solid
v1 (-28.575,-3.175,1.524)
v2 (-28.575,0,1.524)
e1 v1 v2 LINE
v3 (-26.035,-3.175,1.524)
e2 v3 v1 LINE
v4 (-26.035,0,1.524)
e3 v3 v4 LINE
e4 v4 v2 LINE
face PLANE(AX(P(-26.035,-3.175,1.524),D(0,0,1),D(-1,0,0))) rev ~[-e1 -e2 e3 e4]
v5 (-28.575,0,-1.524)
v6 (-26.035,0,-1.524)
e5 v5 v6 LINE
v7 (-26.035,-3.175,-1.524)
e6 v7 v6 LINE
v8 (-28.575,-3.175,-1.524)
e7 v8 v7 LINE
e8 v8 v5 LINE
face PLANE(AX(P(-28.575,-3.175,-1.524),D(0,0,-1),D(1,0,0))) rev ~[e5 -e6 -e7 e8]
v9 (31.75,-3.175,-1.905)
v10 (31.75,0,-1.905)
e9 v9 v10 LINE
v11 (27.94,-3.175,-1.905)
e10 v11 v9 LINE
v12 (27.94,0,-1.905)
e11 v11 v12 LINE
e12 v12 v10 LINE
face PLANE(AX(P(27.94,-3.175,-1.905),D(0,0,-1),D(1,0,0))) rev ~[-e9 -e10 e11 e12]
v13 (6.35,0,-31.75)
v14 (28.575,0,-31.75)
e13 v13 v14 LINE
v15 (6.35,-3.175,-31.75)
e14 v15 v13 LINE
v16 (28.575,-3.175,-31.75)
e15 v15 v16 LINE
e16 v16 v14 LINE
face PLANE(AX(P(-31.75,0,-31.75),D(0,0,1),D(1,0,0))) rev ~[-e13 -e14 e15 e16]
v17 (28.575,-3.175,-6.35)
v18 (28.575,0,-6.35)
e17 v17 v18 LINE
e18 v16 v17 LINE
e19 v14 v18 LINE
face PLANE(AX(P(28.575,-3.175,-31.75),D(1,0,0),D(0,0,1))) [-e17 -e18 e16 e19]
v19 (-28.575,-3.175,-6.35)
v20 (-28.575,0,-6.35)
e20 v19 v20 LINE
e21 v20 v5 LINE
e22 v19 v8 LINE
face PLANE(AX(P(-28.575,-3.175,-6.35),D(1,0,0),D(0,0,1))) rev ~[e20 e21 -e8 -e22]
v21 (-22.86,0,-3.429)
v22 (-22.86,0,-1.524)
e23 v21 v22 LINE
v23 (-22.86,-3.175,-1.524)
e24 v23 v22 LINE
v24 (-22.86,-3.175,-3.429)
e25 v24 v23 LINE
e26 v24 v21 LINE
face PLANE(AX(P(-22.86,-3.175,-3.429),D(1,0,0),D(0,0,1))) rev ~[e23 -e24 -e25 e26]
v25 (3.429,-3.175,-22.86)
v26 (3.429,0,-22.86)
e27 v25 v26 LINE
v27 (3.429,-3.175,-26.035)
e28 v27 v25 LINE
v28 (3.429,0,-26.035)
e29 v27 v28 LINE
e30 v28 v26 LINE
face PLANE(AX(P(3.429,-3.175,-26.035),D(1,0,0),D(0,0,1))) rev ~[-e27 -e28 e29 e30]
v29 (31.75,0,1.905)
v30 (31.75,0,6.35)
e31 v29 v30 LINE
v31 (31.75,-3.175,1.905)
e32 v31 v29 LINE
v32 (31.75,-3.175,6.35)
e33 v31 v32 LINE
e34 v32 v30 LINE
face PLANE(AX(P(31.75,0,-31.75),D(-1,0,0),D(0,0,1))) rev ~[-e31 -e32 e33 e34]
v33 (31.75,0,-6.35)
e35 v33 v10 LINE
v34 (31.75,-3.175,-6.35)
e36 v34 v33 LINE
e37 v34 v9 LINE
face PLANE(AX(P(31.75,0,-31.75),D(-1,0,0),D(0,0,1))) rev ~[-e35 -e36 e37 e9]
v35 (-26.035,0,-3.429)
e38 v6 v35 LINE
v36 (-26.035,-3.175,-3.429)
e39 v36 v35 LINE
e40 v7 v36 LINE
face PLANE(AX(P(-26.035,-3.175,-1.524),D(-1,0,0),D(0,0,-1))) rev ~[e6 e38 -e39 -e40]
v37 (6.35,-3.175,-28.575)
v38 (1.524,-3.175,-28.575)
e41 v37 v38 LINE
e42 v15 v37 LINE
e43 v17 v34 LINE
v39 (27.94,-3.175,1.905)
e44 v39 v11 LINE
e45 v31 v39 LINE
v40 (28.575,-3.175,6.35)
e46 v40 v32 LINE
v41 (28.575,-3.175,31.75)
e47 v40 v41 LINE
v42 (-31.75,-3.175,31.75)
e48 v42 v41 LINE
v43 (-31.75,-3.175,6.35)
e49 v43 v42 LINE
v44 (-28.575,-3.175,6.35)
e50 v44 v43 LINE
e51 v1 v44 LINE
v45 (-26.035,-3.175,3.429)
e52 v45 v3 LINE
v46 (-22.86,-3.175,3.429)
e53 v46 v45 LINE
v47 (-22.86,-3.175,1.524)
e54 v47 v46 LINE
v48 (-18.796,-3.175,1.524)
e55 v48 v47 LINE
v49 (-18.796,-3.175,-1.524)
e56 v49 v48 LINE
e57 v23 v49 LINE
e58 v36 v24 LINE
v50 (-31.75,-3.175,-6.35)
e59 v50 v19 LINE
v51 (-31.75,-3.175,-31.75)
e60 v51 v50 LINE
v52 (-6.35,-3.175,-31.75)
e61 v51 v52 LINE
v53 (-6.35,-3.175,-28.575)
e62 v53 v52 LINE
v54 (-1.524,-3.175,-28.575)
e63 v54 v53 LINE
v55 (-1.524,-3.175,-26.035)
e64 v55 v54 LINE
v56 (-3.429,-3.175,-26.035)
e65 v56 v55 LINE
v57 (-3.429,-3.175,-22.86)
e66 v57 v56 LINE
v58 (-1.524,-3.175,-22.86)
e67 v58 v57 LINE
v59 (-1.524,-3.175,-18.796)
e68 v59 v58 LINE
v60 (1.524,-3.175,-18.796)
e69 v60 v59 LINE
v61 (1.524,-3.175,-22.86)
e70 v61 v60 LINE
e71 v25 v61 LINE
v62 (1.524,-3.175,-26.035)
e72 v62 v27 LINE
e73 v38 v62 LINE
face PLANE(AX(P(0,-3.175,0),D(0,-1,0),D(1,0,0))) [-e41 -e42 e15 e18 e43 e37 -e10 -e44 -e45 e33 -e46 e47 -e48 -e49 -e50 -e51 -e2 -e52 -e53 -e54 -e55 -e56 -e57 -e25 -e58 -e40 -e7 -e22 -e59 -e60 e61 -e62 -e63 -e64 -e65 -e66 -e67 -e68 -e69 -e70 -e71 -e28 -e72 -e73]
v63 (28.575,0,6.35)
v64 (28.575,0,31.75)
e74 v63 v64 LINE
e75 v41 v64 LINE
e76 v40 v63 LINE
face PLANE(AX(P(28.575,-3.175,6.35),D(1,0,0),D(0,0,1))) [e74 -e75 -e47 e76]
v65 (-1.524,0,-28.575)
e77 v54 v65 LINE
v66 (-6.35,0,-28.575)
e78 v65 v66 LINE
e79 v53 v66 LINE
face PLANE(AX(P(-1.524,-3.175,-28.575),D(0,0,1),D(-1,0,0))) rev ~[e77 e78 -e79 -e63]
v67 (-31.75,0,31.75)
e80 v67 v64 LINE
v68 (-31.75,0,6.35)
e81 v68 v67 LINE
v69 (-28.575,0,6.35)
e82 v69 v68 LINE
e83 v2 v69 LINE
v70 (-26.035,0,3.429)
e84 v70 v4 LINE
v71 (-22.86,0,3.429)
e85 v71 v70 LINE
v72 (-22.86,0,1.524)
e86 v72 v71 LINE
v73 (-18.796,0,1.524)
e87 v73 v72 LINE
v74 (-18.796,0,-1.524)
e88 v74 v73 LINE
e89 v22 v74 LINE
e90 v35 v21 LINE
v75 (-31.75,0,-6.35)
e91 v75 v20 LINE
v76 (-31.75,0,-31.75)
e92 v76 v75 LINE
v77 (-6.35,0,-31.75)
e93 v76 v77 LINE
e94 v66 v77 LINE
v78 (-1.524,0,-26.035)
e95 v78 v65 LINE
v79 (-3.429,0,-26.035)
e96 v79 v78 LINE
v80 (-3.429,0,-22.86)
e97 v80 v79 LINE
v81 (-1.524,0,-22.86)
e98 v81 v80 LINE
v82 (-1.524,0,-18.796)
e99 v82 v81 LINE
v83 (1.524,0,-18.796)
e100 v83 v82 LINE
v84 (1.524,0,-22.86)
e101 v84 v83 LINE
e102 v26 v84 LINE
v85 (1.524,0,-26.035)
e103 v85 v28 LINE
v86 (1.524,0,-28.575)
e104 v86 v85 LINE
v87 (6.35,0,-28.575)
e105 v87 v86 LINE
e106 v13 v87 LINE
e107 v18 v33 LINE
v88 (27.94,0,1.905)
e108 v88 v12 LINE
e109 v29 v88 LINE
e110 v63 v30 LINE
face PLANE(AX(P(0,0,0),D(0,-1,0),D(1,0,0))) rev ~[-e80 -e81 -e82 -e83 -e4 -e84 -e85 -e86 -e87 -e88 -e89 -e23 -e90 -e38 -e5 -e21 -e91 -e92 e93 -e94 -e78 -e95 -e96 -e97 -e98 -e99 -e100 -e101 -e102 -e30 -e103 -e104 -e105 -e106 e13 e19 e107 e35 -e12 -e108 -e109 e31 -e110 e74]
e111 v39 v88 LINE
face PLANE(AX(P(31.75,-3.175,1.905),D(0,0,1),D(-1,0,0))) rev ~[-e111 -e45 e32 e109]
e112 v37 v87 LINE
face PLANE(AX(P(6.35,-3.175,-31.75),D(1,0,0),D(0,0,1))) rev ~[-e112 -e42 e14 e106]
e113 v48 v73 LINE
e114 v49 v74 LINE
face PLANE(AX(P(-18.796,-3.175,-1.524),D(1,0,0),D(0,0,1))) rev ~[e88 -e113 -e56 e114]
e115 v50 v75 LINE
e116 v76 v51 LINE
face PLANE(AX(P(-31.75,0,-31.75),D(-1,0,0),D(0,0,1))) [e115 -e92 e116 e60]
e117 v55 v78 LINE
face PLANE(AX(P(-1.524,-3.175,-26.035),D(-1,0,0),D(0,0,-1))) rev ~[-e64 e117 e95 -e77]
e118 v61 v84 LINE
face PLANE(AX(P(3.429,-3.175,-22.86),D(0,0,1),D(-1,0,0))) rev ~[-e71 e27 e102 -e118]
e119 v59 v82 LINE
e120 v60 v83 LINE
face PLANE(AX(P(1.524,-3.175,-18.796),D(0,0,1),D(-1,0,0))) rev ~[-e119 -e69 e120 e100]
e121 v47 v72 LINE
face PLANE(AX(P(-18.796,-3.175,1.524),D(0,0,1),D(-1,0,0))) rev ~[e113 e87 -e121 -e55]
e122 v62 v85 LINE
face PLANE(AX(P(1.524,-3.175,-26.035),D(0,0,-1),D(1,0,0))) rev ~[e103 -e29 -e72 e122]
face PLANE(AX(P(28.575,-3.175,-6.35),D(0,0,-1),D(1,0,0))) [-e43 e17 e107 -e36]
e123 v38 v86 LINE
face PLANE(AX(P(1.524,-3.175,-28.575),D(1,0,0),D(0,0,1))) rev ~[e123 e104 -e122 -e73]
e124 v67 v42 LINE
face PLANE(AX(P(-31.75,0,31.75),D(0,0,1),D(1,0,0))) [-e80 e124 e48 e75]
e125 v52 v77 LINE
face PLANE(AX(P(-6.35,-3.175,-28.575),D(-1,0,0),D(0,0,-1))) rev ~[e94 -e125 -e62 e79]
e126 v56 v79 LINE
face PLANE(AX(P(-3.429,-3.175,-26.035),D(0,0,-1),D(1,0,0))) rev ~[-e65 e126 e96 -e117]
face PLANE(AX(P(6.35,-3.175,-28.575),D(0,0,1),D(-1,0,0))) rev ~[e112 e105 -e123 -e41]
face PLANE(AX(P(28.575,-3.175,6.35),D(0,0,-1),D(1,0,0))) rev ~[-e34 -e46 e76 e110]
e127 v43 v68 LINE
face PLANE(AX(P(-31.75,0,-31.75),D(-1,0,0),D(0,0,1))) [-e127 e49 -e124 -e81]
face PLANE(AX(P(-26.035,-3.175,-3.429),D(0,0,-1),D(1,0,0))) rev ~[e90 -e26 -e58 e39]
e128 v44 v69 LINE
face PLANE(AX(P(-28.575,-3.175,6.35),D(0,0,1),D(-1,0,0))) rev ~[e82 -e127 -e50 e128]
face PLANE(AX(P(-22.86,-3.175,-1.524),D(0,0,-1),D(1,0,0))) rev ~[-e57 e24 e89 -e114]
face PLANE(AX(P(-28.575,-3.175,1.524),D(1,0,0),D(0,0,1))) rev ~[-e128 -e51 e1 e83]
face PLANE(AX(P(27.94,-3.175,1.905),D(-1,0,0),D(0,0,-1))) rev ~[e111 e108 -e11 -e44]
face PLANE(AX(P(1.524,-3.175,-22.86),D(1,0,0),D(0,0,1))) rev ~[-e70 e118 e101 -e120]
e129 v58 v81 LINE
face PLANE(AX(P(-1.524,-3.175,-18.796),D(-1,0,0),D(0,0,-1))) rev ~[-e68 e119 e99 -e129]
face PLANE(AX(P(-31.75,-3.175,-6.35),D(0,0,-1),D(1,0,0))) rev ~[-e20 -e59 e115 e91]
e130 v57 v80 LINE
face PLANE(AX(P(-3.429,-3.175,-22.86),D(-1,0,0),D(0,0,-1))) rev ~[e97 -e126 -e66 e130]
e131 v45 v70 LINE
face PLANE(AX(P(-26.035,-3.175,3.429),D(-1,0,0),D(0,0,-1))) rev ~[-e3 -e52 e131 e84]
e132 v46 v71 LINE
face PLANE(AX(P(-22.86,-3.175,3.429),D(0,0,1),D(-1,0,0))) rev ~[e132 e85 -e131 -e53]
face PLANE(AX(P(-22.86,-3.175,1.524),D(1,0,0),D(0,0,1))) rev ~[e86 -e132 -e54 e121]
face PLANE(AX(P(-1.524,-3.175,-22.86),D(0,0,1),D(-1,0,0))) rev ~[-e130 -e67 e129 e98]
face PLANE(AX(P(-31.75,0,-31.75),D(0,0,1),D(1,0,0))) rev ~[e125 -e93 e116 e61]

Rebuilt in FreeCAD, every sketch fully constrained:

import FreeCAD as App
import Part
import Sketcher
from FreeCAD import Vector
Q = App.Units.Quantity

doc = App.newDocument("Part")
body = doc.addObject("PartDesign::Body", "Body")

# Sketch on XZ plane
sketch1 = body.newObject("Sketcher::SketchObject", "Sketch")
sketch1.AttachmentSupport = (doc.getObject("XZ_Plane"), [""])
sketch1.MapMode = "FlatFace"
sketch1.addGeometry(Part.LineSegment(Vector(-31.75, 31.75, 0), Vector(-31.75, -31.75, 0)), False)
sketch1.addGeometry(Part.LineSegment(Vector(-31.75, -31.75, 0), Vector(31.75, -31.75, 0)), False)
sketch1.addGeometry(Part.LineSegment(Vector(31.75, -31.75, 0), Vector(31.75, 31.75, 0)), False)
sketch1.addGeometry(Part.LineSegment(Vector(31.75, 31.75, 0), Vector(-31.75, 31.75, 0)), False)
sketch1.addConstraint(Sketcher.Constraint("Coincident", 0, 2, 1, 1))
sketch1.addConstraint(Sketcher.Constraint("Coincident", 1, 2, 2, 1))
sketch1.addConstraint(Sketcher.Constraint("Coincident", 2, 2, 3, 1))
sketch1.addConstraint(Sketcher.Constraint("Coincident", 3, 2, 0, 1))
sketch1.addConstraint(Sketcher.Constraint("Vertical", 0))
sketch1.addConstraint(Sketcher.Constraint("Horizontal", 1))
sketch1.addConstraint(Sketcher.Constraint("Vertical", 2))
sketch1.addConstraint(Sketcher.Constraint("Horizontal", 3))
sketch1.addConstraint(Sketcher.Constraint("Symmetric", 0, 2, 2, 2, -1, 1))
sketch1.addConstraint(Sketcher.Constraint("Equal", 3, 0))
sketch1.addConstraint(Sketcher.Constraint("DistanceX", 1, 1, 1, 2, Q("2.5 in")))
pad1 = body.newObject("PartDesign::Pad", "Pad")
pad1.Profile = sketch1
pad1.Length = Q("0.125 in")

# Sketch on XZ plane
sketch2 = body.newObject("Sketcher::SketchObject", "Sketch001")
sketch2.AttachmentSupport = (doc.getObject("XZ_Plane"), [""])
sketch2.MapMode = "FlatFace"
sketch2.AttachmentOffset = App.Placement(Vector(0, 0, 0.125 * 25.4), App.Rotation())
sketch2.addGeometry(Part.LineSegment(Vector(28.575, 31.75, 0), Vector(28.575, 6.35, 0)), False)
sketch2.addGeometry(Part.LineSegment(Vector(28.575, 6.35, 0), Vector(31.75, 6.35, 0)), False)
sketch2.addGeometry(Part.LineSegment(Vector(31.75, 6.35, 0), Vector(31.75, 31.75, 0)), False)
sketch2.addGeometry(Part.LineSegment(Vector(31.75, 31.75, 0), Vector(28.575, 31.75, 0)), False)
sketch2.addGeometry(Part.LineSegment(Vector(28.575, -6.35, 0), Vector(28.575, -31.75, 0)), False)
sketch2.addGeometry(Part.LineSegment(Vector(28.575, -31.75, 0), Vector(31.75, -31.75, 0)), False)
sketch2.addGeometry(Part.LineSegment(Vector(31.75, -31.75, 0), Vector(31.75, -6.35, 0)), False)
sketch2.addGeometry(Part.LineSegment(Vector(31.75, -6.35, 0), Vector(28.575, -6.35, 0)), False)
sketch2.addGeometry(Part.LineSegment(Vector(31.75, 1.905, 0), Vector(27.94, 1.905, 0)), False)
sketch2.addGeometry(Part.LineSegment(Vector(27.94, 1.905, 0), Vector(27.94, -1.905, 0)), False)
sketch2.addGeometry(Part.LineSegment(Vector(27.94, -1.905, 0), Vector(31.75, -1.905, 0)), False)
sketch2.addGeometry(Part.LineSegment(Vector(31.75, -1.905, 0), Vector(31.75, 1.905, 0)), False)
sketch2.addGeometry(Part.LineSegment(Vector(-6.35, -31.75, 0), Vector(6.35, -31.75, 0)), False)
sketch2.addGeometry(Part.LineSegment(Vector(6.35, -31.75, 0), Vector(6.35, -28.575, 0)), False)
sketch2.addGeometry(Part.LineSegment(Vector(6.35, -28.575, 0), Vector(1.524, -28.575, 0)), False)
sketch2.addGeometry(Part.LineSegment(Vector(1.524, -28.575, 0), Vector(1.524, -26.035, 0)), False)
sketch2.addGeometry(Part.LineSegment(Vector(1.524, -26.035, 0), Vector(3.429, -26.035, 0)), False)
sketch2.addGeometry(Part.LineSegment(Vector(3.429, -26.035, 0), Vector(3.429, -22.86, 0)), False)
sketch2.addGeometry(Part.LineSegment(Vector(3.429, -22.86, 0), Vector(1.524, -22.86, 0)), False)
sketch2.addGeometry(Part.LineSegment(Vector(1.524, -22.86, 0), Vector(1.524, -18.796, 0)), False)
sketch2.addGeometry(Part.LineSegment(Vector(1.524, -18.796, 0), Vector(-1.524, -18.796, 0)), False)
sketch2.addGeometry(Part.LineSegment(Vector(-1.524, -18.796, 0), Vector(-1.524, -22.86, 0)), False)
sketch2.addGeometry(Part.LineSegment(Vector(-1.524, -22.86, 0), Vector(-3.429, -22.86, 0)), False)
sketch2.addGeometry(Part.LineSegment(Vector(-3.429, -22.86, 0), Vector(-3.429, -26.035, 0)), False)
sketch2.addGeometry(Part.LineSegment(Vector(-3.429, -26.035, 0), Vector(-1.524, -26.035, 0)), False)
sketch2.addGeometry(Part.LineSegment(Vector(-1.524, -26.035, 0), Vector(-1.524, -28.575, 0)), False)
sketch2.addGeometry(Part.LineSegment(Vector(-1.524, -28.575, 0), Vector(-6.35, -28.575, 0)), False)
sketch2.addGeometry(Part.LineSegment(Vector(-6.35, -28.575, 0), Vector(-6.35, -31.75, 0)), False)
sketch2.addGeometry(Part.LineSegment(Vector(-31.75, 6.35, 0), Vector(-31.75, -6.35, 0)), False)
sketch2.addGeometry(Part.LineSegment(Vector(-31.75, -6.35, 0), Vector(-28.575, -6.35, 0)), False)
sketch2.addGeometry(Part.LineSegment(Vector(-28.575, -6.35, 0), Vector(-28.575, -1.524, 0)), False)
sketch2.addGeometry(Part.LineSegment(Vector(-28.575, -1.524, 0), Vector(-26.035, -1.524, 0)), False)
sketch2.addGeometry(Part.LineSegment(Vector(-26.035, -1.524, 0), Vector(-26.035, -3.429, 0)), False)
sketch2.addGeometry(Part.LineSegment(Vector(-26.035, -3.429, 0), Vector(-22.86, -3.429, 0)), False)
sketch2.addGeometry(Part.LineSegment(Vector(-22.86, -3.429, 0), Vector(-22.86, -1.524, 0)), False)
sketch2.addGeometry(Part.LineSegment(Vector(-22.86, -1.524, 0), Vector(-18.796, -1.524, 0)), False)
sketch2.addGeometry(Part.LineSegment(Vector(-18.796, -1.524, 0), Vector(-18.796, 1.524, 0)), False)
sketch2.addGeometry(Part.LineSegment(Vector(-18.796, 1.524, 0), Vector(-22.86, 1.524, 0)), False)
sketch2.addGeometry(Part.LineSegment(Vector(-22.86, 1.524, 0), Vector(-22.86, 3.429, 0)), False)
sketch2.addGeometry(Part.LineSegment(Vector(-22.86, 3.429, 0), Vector(-26.035, 3.429, 0)), False)
sketch2.addGeometry(Part.LineSegment(Vector(-26.035, 3.429, 0), Vector(-26.035, 1.524, 0)), False)
sketch2.addGeometry(Part.LineSegment(Vector(-26.035, 1.524, 0), Vector(-28.575, 1.524, 0)), False)
sketch2.addGeometry(Part.LineSegment(Vector(-28.575, 1.524, 0), Vector(-28.575, 6.35, 0)), False)
sketch2.addGeometry(Part.LineSegment(Vector(-28.575, 6.35, 0), Vector(-31.75, 6.35, 0)), False)
sketch2.addConstraint(Sketcher.Constraint("Coincident", 0, 2, 1, 1))
sketch2.addConstraint(Sketcher.Constraint("Coincident", 1, 2, 2, 1))
sketch2.addConstraint(Sketcher.Constraint("Coincident", 2, 2, 3, 1))
sketch2.addConstraint(Sketcher.Constraint("Coincident", 3, 2, 0, 1))
sketch2.addConstraint(Sketcher.Constraint("Coincident", 4, 2, 5, 1))
sketch2.addConstraint(Sketcher.Constraint("Coincident", 5, 2, 6, 1))
sketch2.addConstraint(Sketcher.Constraint("Coincident", 6, 2, 7, 1))
sketch2.addConstraint(Sketcher.Constraint("Coincident", 7, 2, 4, 1))
sketch2.addConstraint(Sketcher.Constraint("Coincident", 8, 2, 9, 1))
sketch2.addConstraint(Sketcher.Constraint("Coincident", 9, 2, 10, 1))
sketch2.addConstraint(Sketcher.Constraint("Coincident", 10, 2, 11, 1))
sketch2.addConstraint(Sketcher.Constraint("Coincident", 11, 2, 8, 1))
sketch2.addConstraint(Sketcher.Constraint("Coincident", 12, 2, 13, 1))
sketch2.addConstraint(Sketcher.Constraint("Coincident", 13, 2, 14, 1))
sketch2.addConstraint(Sketcher.Constraint("Coincident", 14, 2, 15, 1))
sketch2.addConstraint(Sketcher.Constraint("Coincident", 15, 2, 16, 1))
sketch2.addConstraint(Sketcher.Constraint("Coincident", 16, 2, 17, 1))
sketch2.addConstraint(Sketcher.Constraint("Coincident", 17, 2, 18, 1))
sketch2.addConstraint(Sketcher.Constraint("Coincident", 18, 2, 19, 1))
sketch2.addConstraint(Sketcher.Constraint("Coincident", 19, 2, 20, 1))
sketch2.addConstraint(Sketcher.Constraint("Coincident", 20, 2, 21, 1))
sketch2.addConstraint(Sketcher.Constraint("Coincident", 21, 2, 22, 1))
sketch2.addConstraint(Sketcher.Constraint("Coincident", 22, 2, 23, 1))
sketch2.addConstraint(Sketcher.Constraint("Coincident", 23, 2, 24, 1))
sketch2.addConstraint(Sketcher.Constraint("Coincident", 24, 2, 25, 1))
sketch2.addConstraint(Sketcher.Constraint("Coincident", 25, 2, 26, 1))
sketch2.addConstraint(Sketcher.Constraint("Coincident", 26, 2, 27, 1))
sketch2.addConstraint(Sketcher.Constraint("Coincident", 27, 2, 12, 1))
sketch2.addConstraint(Sketcher.Constraint("Coincident", 28, 2, 29, 1))
sketch2.addConstraint(Sketcher.Constraint("Coincident", 29, 2, 30, 1))
sketch2.addConstraint(Sketcher.Constraint("Coincident", 30, 2, 31, 1))
sketch2.addConstraint(Sketcher.Constraint("Coincident", 31, 2, 32, 1))
sketch2.addConstraint(Sketcher.Constraint("Coincident", 32, 2, 33, 1))
sketch2.addConstraint(Sketcher.Constraint("Coincident", 33, 2, 34, 1))
sketch2.addConstraint(Sketcher.Constraint("Coincident", 34, 2, 35, 1))
sketch2.addConstraint(Sketcher.Constraint("Coincident", 35, 2, 36, 1))
sketch2.addConstraint(Sketcher.Constraint("Coincident", 36, 2, 37, 1))
sketch2.addConstraint(Sketcher.Constraint("Coincident", 37, 2, 38, 1))
sketch2.addConstraint(Sketcher.Constraint("Coincident", 38, 2, 39, 1))
sketch2.addConstraint(Sketcher.Constraint("Coincident", 39, 2, 40, 1))
sketch2.addConstraint(Sketcher.Constraint("Coincident", 40, 2, 41, 1))
sketch2.addConstraint(Sketcher.Constraint("Coincident", 41, 2, 42, 1))
sketch2.addConstraint(Sketcher.Constraint("Coincident", 42, 2, 43, 1))
sketch2.addConstraint(Sketcher.Constraint("Coincident", 43, 2, 28, 1))
sketch2.addConstraint(Sketcher.Constraint("Vertical", 0))
sketch2.addConstraint(Sketcher.Constraint("Horizontal", 1))
sketch2.addConstraint(Sketcher.Constraint("Vertical", 2))
sketch2.addConstraint(Sketcher.Constraint("Horizontal", 3))
sketch2.addConstraint(Sketcher.Constraint("Vertical", 4))
sketch2.addConstraint(Sketcher.Constraint("Horizontal", 5))
sketch2.addConstraint(Sketcher.Constraint("Vertical", 6))
sketch2.addConstraint(Sketcher.Constraint("Horizontal", 7))
sketch2.addConstraint(Sketcher.Constraint("Horizontal", 8))
sketch2.addConstraint(Sketcher.Constraint("Vertical", 9))
sketch2.addConstraint(Sketcher.Constraint("Horizontal", 10))
sketch2.addConstraint(Sketcher.Constraint("Vertical", 11))
sketch2.addConstraint(Sketcher.Constraint("Horizontal", 12))
sketch2.addConstraint(Sketcher.Constraint("Vertical", 13))
sketch2.addConstraint(Sketcher.Constraint("Horizontal", 14))
sketch2.addConstraint(Sketcher.Constraint("Vertical", 15))
sketch2.addConstraint(Sketcher.Constraint("Horizontal", 16))
sketch2.addConstraint(Sketcher.Constraint("Vertical", 17))
sketch2.addConstraint(Sketcher.Constraint("Horizontal", 18))
sketch2.addConstraint(Sketcher.Constraint("Vertical", 19))
sketch2.addConstraint(Sketcher.Constraint("Horizontal", 20))
sketch2.addConstraint(Sketcher.Constraint("Vertical", 21))
sketch2.addConstraint(Sketcher.Constraint("Horizontal", 22))
sketch2.addConstraint(Sketcher.Constraint("Vertical", 23))
sketch2.addConstraint(Sketcher.Constraint("Horizontal", 24))
sketch2.addConstraint(Sketcher.Constraint("Vertical", 25))
sketch2.addConstraint(Sketcher.Constraint("Horizontal", 26))
sketch2.addConstraint(Sketcher.Constraint("Vertical", 27))
sketch2.addConstraint(Sketcher.Constraint("Vertical", 28))
sketch2.addConstraint(Sketcher.Constraint("Horizontal", 29))
sketch2.addConstraint(Sketcher.Constraint("Vertical", 30))
sketch2.addConstraint(Sketcher.Constraint("Horizontal", 31))
sketch2.addConstraint(Sketcher.Constraint("Vertical", 32))
sketch2.addConstraint(Sketcher.Constraint("Horizontal", 33))
sketch2.addConstraint(Sketcher.Constraint("Vertical", 34))
sketch2.addConstraint(Sketcher.Constraint("Horizontal", 35))
sketch2.addConstraint(Sketcher.Constraint("Vertical", 36))
sketch2.addConstraint(Sketcher.Constraint("Horizontal", 37))
sketch2.addConstraint(Sketcher.Constraint("Vertical", 38))
sketch2.addConstraint(Sketcher.Constraint("Horizontal", 39))
sketch2.addConstraint(Sketcher.Constraint("Vertical", 40))
sketch2.addConstraint(Sketcher.Constraint("Horizontal", 41))
sketch2.addConstraint(Sketcher.Constraint("Vertical", 42))
sketch2.addConstraint(Sketcher.Constraint("Horizontal", 43))
sketch2.addConstraint(Sketcher.Constraint("Symmetric", 1, 2, 28, 2, -1, 1))
sketch2.addConstraint(Sketcher.Constraint("Symmetric", 7, 2, 42, 2, -1, 1))
sketch2.addConstraint(Sketcher.Constraint("Symmetric", 18, 2, 21, 2, -2))
sketch2.addConstraint(Sketcher.Constraint("Symmetric", 16, 2, 23, 2, -2))
sketch2.addConstraint(Sketcher.Constraint("Symmetric", 14, 2, 25, 2, -2))
sketch2.addConstraint(Sketcher.Constraint("Symmetric", 6, 2, 28, 2, -2))
sketch2.addConstraint(Sketcher.Constraint("Symmetric", 3, 2, 4, 2, -1))
sketch2.addConstraint(Sketcher.Constraint("Symmetric", 34, 2, 37, 2, -1))
sketch2.addConstraint(Sketcher.Constraint("Symmetric", 32, 2, 39, 2, -1))
sketch2.addConstraint(Sketcher.Constraint("Symmetric", 30, 2, 41, 2, -1))
sketch2.addConstraint(Sketcher.Constraint("Horizontal", 5, 2, 12, 2))
sketch2.addConstraint(Sketcher.Constraint("Horizontal", 31, 2, 34, 2))
sketch2.addConstraint(Sketcher.Constraint("Vertical", 6, 2, 10, 2))
sketch2.addConstraint(Sketcher.Constraint("Vertical", 15, 2, 18, 2))
sketch2.addConstraint(Sketcher.Constraint("Equal", 14, 26))
sketch2.addConstraint(Sketcher.Constraint("Equal", 29, 33))
sketch2.addConstraint(Sketcher.Constraint("Equal", 10, 9))
sketch2.addConstraint(Sketcher.Constraint("Equal", 43, 13))
sketch2.addConstraint(Sketcher.Constraint("Equal", 41, 15))
sketch2.addConstraint(Sketcher.Constraint("Equal", 13, 17))
sketch2.addConstraint(Sketcher.Constraint("Equal", 37, 19))
sketch2.addConstraint(Sketcher.Constraint("Equal", 12, 28))
sketch2.addConstraint(Sketcher.Constraint("Equal", 26, 30))
sketch2.addConstraint(Sketcher.Constraint("Equal", 24, 32))
sketch2.addConstraint(Sketcher.Constraint("DistanceY", 0, 2, 0, 1, Q("1 in")))
sketch2.addConstraint(Sketcher.Constraint("DistanceX", 12, 1, 12, 2, Q("0.5 in")))
sketch2.addConstraint(Sketcher.Constraint("DistanceX", 31, 1, 31, 2, Q("0.1 in")))
sketch2.addConstraint(Sketcher.Constraint("DistanceX", 12, 2, 5, 2, Q("1 in")))
sketch2.addConstraint(Sketcher.Constraint("DistanceX", 8, 2, 8, 1, Q("0.15 in")))
sketch2.addConstraint(Sketcher.Constraint("DistanceX", 14, 2, 14, 1, Q("0.19 in")))
sketch2.addConstraint(Sketcher.Constraint("DistanceX", 35, 1, 35, 2, Q("0.16 in")))
sketch2.addConstraint(Sketcher.Constraint("DistanceY", 17, 2, -1, 1, Q("0.9 in")))
sketch2.addConstraint(Sketcher.Constraint("DistanceX", 16, 1, 16, 2, Q("0.075 in")))
sketch2.addConstraint(Sketcher.Constraint("DistanceY", -1, 1, 8, 2, Q("0.075 in")))
pocket1 = body.newObject("PartDesign::Pocket", "Pocket")
pocket1.Profile = sketch2
pocket1.Length = Q("1 in")

doc.recompute()
